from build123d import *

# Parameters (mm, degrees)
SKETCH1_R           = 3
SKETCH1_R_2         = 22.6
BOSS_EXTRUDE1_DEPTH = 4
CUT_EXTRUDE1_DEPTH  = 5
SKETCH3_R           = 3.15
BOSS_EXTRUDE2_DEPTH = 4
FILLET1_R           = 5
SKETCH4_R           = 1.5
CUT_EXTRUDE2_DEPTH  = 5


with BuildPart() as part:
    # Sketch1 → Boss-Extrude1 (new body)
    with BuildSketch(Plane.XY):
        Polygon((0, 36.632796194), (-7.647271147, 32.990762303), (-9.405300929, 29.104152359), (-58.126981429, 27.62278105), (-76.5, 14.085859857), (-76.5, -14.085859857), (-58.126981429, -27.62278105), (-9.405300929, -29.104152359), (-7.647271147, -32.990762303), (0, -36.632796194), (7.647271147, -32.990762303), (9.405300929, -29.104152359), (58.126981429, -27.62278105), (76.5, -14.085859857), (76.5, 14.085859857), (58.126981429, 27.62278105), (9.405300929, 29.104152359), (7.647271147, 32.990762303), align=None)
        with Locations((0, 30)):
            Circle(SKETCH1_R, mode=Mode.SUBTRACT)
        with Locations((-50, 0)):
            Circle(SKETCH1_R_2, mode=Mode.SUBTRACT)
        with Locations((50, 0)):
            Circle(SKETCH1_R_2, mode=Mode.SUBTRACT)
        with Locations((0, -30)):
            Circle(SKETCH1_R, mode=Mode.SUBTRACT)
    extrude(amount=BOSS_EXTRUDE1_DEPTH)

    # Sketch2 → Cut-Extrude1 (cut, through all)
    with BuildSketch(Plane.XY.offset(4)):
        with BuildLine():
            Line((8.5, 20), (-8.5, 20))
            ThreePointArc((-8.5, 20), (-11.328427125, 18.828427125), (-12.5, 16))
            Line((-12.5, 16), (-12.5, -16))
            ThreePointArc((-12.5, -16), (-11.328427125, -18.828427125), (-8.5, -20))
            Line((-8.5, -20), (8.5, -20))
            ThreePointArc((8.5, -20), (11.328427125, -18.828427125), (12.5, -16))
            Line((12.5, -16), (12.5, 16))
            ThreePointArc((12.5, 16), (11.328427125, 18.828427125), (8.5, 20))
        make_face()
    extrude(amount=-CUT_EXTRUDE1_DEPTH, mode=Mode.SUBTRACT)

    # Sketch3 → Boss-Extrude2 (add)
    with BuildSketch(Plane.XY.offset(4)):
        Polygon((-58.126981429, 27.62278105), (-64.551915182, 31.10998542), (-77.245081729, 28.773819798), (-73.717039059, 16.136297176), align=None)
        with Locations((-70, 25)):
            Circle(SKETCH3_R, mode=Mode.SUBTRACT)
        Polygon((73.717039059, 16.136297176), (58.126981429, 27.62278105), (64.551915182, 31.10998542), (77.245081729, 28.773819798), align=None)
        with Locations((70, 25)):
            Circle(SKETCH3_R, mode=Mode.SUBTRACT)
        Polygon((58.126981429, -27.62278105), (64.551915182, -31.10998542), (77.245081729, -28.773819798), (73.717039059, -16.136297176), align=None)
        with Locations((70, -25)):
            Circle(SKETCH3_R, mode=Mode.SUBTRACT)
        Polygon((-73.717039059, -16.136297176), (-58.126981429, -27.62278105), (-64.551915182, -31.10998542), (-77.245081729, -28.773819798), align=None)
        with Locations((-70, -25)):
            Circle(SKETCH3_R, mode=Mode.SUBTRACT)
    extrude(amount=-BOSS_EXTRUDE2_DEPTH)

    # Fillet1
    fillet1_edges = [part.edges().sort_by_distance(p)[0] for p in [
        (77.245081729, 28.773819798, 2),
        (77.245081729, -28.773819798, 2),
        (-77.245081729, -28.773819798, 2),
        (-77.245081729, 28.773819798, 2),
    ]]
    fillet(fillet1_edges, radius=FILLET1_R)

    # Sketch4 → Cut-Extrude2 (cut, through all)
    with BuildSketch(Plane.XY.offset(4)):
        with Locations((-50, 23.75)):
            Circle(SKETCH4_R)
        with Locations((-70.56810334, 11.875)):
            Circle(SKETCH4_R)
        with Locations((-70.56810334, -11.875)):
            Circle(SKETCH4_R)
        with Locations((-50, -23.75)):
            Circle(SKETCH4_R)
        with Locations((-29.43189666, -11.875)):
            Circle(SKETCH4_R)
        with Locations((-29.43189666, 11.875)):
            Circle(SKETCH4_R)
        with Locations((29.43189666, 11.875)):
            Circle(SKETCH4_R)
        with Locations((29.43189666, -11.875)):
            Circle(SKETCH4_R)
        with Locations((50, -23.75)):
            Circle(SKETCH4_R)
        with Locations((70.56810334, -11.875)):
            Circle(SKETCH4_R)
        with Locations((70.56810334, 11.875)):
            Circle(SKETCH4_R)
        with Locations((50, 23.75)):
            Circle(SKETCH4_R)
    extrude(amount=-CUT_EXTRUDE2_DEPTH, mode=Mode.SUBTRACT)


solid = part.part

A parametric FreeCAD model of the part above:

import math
import FreeCAD as App
import Part
import Sketcher
from FreeCAD import Vector
Q = App.Units.Quantity


def edges_at(feature, points):
    """Names of the edges that pass closest to the given points."""
    edges = feature.Shape.Edges
    near = lambda p: min(range(len(edges)), key=lambda i: edges[i].distToShape(Part.Vertex(*p))[0])
    return sorted({f"Edge{near(p) + 1}" for p in points})


def add_polygon(sketch, points):
    """Adds a closed chain of lines whose ends are joined by coincident constraints."""
    first, n = sketch.GeometryCount, len(points)
    for a, b in zip(points, points[1:] + points[:1]):
        sketch.addGeometry(Part.LineSegment(App.Vector(*a, 0), App.Vector(*b, 0)), False)
    for i in range(n):
        sketch.addConstraint(Sketcher.Constraint("Coincident", first + i, 2, first + (i + 1) % n, 1))

doc = App.newDocument("Part")
body = doc.addObject("PartDesign::Body", "Body")

sketch1 = body.newObject("Sketcher::SketchObject", "Sketch")
sketch1.AttachmentSupport = (doc.getObject("XY_Plane"), [""])
sketch1.MapMode = "FlatFace"
add_polygon(sketch1, [(0, 36.6), (-7.6, 33), (-9.4, 29.1), (-58.1, 27.6), (-76.5, 14.1), (-76.5, -14.1), (-58.1, -27.6), (-9.4, -29.1), (-7.6, -33), (0, -36.6), (7.6, -33), (9.4, -29.1), (58.1, -27.6), (76.5, -14.1), (76.5, 14.1), (58.1, 27.6), (9.4, 29.1), (7.6, 33)])
sketch1.addGeometry(Part.Circle(Vector(0, -30, 0), Vector(0, 0, 1), 3), False)
sketch1.addGeometry(Part.Circle(Vector(-50, 0, 0), Vector(0, 0, 1), 22.6), False)
sketch1.addGeometry(Part.Circle(Vector(50, 0, 0), Vector(0, 0, 1), 22.6), False)
sketch1.addGeometry(Part.Circle(Vector(0, 30, 0), Vector(0, 0, 1), 3), False)
sketch1.addConstraint([
    Sketcher.Constraint("Vertical", 4),
    Sketcher.Constraint("Vertical", 13),
    Sketcher.Constraint("Equal", 19, 20),
    Sketcher.Constraint("Equal", 18, 21),
    Sketcher.Constraint("Symmetric", 19, 3, 20, 3, -1, 1),
    Sketcher.Constraint("Symmetric", 18, 3, 21, 3, -1, 1),
    Sketcher.Constraint("Symmetric", 0, 2, 9, 2, -1, 1),
    Sketcher.Constraint("Symmetric", 1, 2, 10, 2, -1, 1),
    Sketcher.Constraint("Symmetric", 2, 2, 11, 2, -1, 1),
    Sketcher.Constraint("Symmetric", 3, 2, 12, 2, -1, 1),
    Sketcher.Constraint("Symmetric", 5, 2, 14, 2, -1, 1),
    Sketcher.Constraint("Symmetric", 6, 2, 15, 2, -1, 1),
    Sketcher.Constraint("Symmetric", 7, 2, 16, 2, -1, 1),
    Sketcher.Constraint("Symmetric", 8, 2, 17, 2, -1, 1),
    Sketcher.Constraint("Symmetric", 7, 2, 9, 2, -2),
    Sketcher.Constraint("Symmetric", 6, 2, 10, 2, -2),
    Sketcher.Constraint("Symmetric", 5, 2, 11, 2, -2),
    Sketcher.Constraint("PointOnObject", 18, 3, -2),
    Sketcher.Constraint("PointOnObject", 19, 3, -1),
    Sketcher.Constraint("PointOnObject", 8, 2, -2),
    Sketcher.Constraint("Parallel", 5, 14),
    Sketcher.Constraint("Horizontal", 4, 2, 12, 2),
    Sketcher.Constraint("Diameter", 18, Q("6 mm")),
    Sketcher.Constraint("Diameter", 19, Q("45.2 mm")),
    Sketcher.Constraint("DistanceY", 18, 3, -1, 1, Q("30 mm")),
    Sketcher.Constraint("DistanceX", 19, 3, -1, 1, Q("50 mm")),
    Sketcher.Constraint("DistanceX", 3, 2, -1, 1, Q("76.5 mm")),
    Sketcher.Constraint("DistanceY", 4, 2, 4, 1, Q("28.17172 mm")),
    Sketcher.Constraint("DistanceX", 1, 2, -1, 1, Q("9.405301 mm")),
    Sketcher.Constraint("Distance", 0, Q("8.470252 mm")),
    Sketcher.Constraint("DistanceX", 0, 2, -1, 1, Q("7.647271 mm")),
    Sketcher.Constraint("DistanceX", 2, 2, -1, 1, Q("58.126981 mm")),
    Sketcher.Constraint("DistanceY", -1, 1, 2, 2, Q("27.622781 mm")),
    Sketcher.Constraint("DistanceY", 1, 2, 0, 2, Q("3.88661 mm")),
    Sketcher.Constraint("DistanceY", 2, 2, 1, 2, Q("1.481371 mm")),
])
pad1 = body.newObject("PartDesign::Pad", "Pad")
pad1.Profile = sketch1
pad1.Length = 4

sketch2 = body.newObject("Sketcher::SketchObject", "Sketch001")
sketch2.AttachmentSupport = (doc.getObject("XY_Plane"), [""])
sketch2.MapMode = "FlatFace"
sketch2.AttachmentOffset = App.Placement(Vector(0, 0, 4), App.Rotation())
sketch2.addGeometry([
    Part.LineSegment(Vector(8.5, 20, 0), Vector(-8.5, 20, 0)),
    Part.ArcOfCircle(Part.Circle(Vector(-8.5, 16, 0), Vector(0, 0, 1), 4), math.radians(90), math.radians(180)),
    Part.LineSegment(Vector(-12.5, 16, 0), Vector(-12.5, -16, 0)),
    Part.ArcOfCircle(Part.Circle(Vector(-8.5, -16, 0), Vector(0, 0, 1), 4), math.radians(180), math.radians(270)),
    Part.LineSegment(Vector(-8.5, -20, 0), Vector(8.5, -20, 0)),
    Part.ArcOfCircle(Part.Circle(Vector(8.5, -16, 0), Vector(0, 0, 1), 4), math.radians(-90), math.radians(0)),
    Part.LineSegment(Vector(12.5, -16, 0), Vector(12.5, 16, 0)),
    Part.ArcOfCircle(Part.Circle(Vector(8.5, 16, 0), Vector(0, 0, 1), 4), math.radians(0), math.radians(90)),
], False)
sketch2.addConstraint([
    Sketcher.Constraint("Tangent", 0, 2, 1, 1),
    Sketcher.Constraint("Tangent", 1, 2, 2, 1),
    Sketcher.Constraint("Tangent", 2, 2, 3, 1),
    Sketcher.Constraint("Tangent", 3, 2, 4, 1),
    Sketcher.Constraint("Tangent", 4, 2, 5, 1),
    Sketcher.Constraint("Tangent", 5, 2, 6, 1),
    Sketcher.Constraint("Tangent", 6, 2, 7, 1),
    Sketcher.Constraint("Tangent", 7, 2, 0, 1),
    Sketcher.Constraint("Horizontal", 0),
    Sketcher.Constraint("Vertical", 2),
    Sketcher.Constraint("Horizontal", 4),
    Sketcher.Constraint("Vertical", 6),
    Sketcher.Constraint("Equal", 1, 3),
    Sketcher.Constraint("Equal", 3, 5),
    Sketcher.Constraint("Equal", 5, 7),
    Sketcher.Constraint("Symmetric", 1, 3, 5, 3, -1, 1),
    Sketcher.Constraint("Radius", 1, Q("4 mm")),
    Sketcher.Constraint("DistanceX", 0, 2, 0, 1, Q("17 mm")),
    Sketcher.Constraint("DistanceY", 2, 2, 2, 1, Q("32 mm")),
])
pocket1 = body.newObject("PartDesign::Pocket", "Pocket")
pocket1.Profile = sketch2
pocket1.Type = "ThroughAll"

sketch3 = body.newObject("Sketcher::SketchObject", "Sketch002")
sketch3.AttachmentSupport = (doc.getObject("XY_Plane"), [""])
sketch3.MapMode = "FlatFace"
sketch3.AttachmentOffset = App.Placement(Vector(0, 0, 4), App.Rotation())
add_polygon(sketch3, [(-58.1, 27.6), (-64.6, 31.1), (-77.2, 28.8), (-73.7, 16.1)])
sketch3.addGeometry(Part.Circle(Vector(-70, 25, 0), Vector(0, 0, 1), 3.1), False)
add_polygon(sketch3, [(58.1, 27.6), (73.7, 16.1), (77.2, 28.8), (64.6, 31.1)])
sketch3.addGeometry(Part.Circle(Vector(70, 25, 0), Vector(0, 0, 1), 3.1), False)
add_polygon(sketch3, [(58.1, -27.6), (64.6, -31.1), (77.2, -28.8), (73.7, -16.1)])
sketch3.addGeometry(Part.Circle(Vector(70, -25, 0), Vector(0, 0, 1), 3.1), False)
add_polygon(sketch3, [(-58.1, -27.6), (-73.7, -16.1), (-77.2, -28.8), (-64.6, -31.1)])
sketch3.addGeometry(Part.Circle(Vector(-70, -25, 0), Vector(0, 0, 1), 3.1), False)
sketch3.addConstraint([
    Sketcher.Constraint("Equal", 4, 9),
    Sketcher.Constraint("Equal", 9, 14),
    Sketcher.Constraint("Equal", 14, 19),
    Sketcher.Constraint("Symmetric", 4, 3, 14, 3, -1, 1),
    Sketcher.Constraint("Symmetric", 9, 3, 19, 3, -1, 1),
    Sketcher.Constraint("Symmetric", 0, 2, 10, 2, -1, 1),
    Sketcher.Constraint("Symmetric", 1, 2, 11, 2, -1, 1),
    Sketcher.Constraint("Symmetric", 2, 2, 12, 2, -1, 1),
    Sketcher.Constraint("Symmetric", 3, 2, 13, 2, -1, 1),
    Sketcher.Constraint("Symmetric", 5, 2, 15, 2, -1, 1),
    Sketcher.Constraint("Symmetric", 6, 2, 16, 2, -1, 1),
    Sketcher.Constraint("Symmetric", 7, 2, 17, 2, -1, 1),
    Sketcher.Constraint("Symmetric", 8, 2, 18, 2, -1, 1),
    Sketcher.Constraint("Symmetric", 4, 3, 9, 3, -2),
    Sketcher.Constraint("Symmetric", 2, 2, 5, 2, -2),
    Sketcher.Constraint("Symmetric", 1, 2, 6, 2, -2),
    Sketcher.Constraint("Symmetric", 0, 2, 7, 2, -2),
    Sketcher.Constraint("Symmetric", 3, 2, 8, 2, -2),
    Sketcher.Constraint("Diameter", 4, Q("6.3 mm")),
    Sketcher.Constraint("DistanceX", 4, 3, -1, 1, Q("70 mm")),
    Sketcher.Constraint("DistanceY", -1, 1, 4, 3, Q("25 mm")),
    Sketcher.Constraint("DistanceX", 1, 2, 3, 2, Q("19.1181 mm")),
    Sketcher.Constraint("Distance", 0, Q("7.310292 mm")),
    Sketcher.Constraint("Distance", 1, Q("12.906361 mm")),
    Sketcher.Constraint("Distance", 2, Q("13.120749 mm")),
    Sketcher.Constraint("Distance", 3, Q("19.364638 mm")),
    Sketcher.Constraint("DistanceX", 1, 2, -1, 1, Q("77.245082 mm")),
    Sketcher.Constraint("DistanceY", -1, 1, 1, 2, Q("28.77382 mm")),
    Sketcher.Constraint("DistanceX", 2, 2, -1, 1, Q("73.717039 mm")),
])
pad2 = body.newObject("PartDesign::Pad", "Pad001")
pad2.Profile = sketch3
pad2.Length = 4
pad2.Reversed = True
doc.recompute()

fillet = body.newObject("PartDesign::Fillet", "Fillet")
fillet.Base = (pad2, edges_at(pad2, [
    (77.245, 28.774, 2),
    (77.245, -28.774, 2),
    (-77.245, -28.774, 2),
    (-77.245, 28.774, 2),
]))
fillet.Radius = 5

sketch4 = body.newObject("Sketcher::SketchObject", "Sketch003")
sketch4.AttachmentSupport = (doc.getObject("XY_Plane"), [""])
sketch4.MapMode = "FlatFace"
sketch4.AttachmentOffset = App.Placement(Vector(0, 0, 4), App.Rotation())
sketch4.addGeometry([
    Part.Circle(Vector(-50, 23.8, 0), Vector(0, 0, 1), 1.5),
    Part.Circle(Vector(-70.6, 11.9, 0), Vector(0, 0, 1), 1.5),
    Part.Circle(Vector(-70.6, -11.9, 0), Vector(0, 0, 1), 1.5),
    Part.Circle(Vector(-50, -23.8, 0), Vector(0, 0, 1), 1.5),
    Part.Circle(Vector(-29.4, -11.9, 0), Vector(0, 0, 1), 1.5),
    Part.Circle(Vector(-29.4, 11.9, 0), Vector(0, 0, 1), 1.5),
    Part.Circle(Vector(29.4, 11.9, 0), Vector(0, 0, 1), 1.5),
    Part.Circle(Vector(29.4, -11.9, 0), Vector(0, 0, 1), 1.5),
    Part.Circle(Vector(50, -23.8, 0), Vector(0, 0, 1), 1.5),
    Part.Circle(Vector(70.6, -11.9, 0), Vector(0, 0, 1), 1.5),
    Part.Circle(Vector(70.6, 11.9, 0), Vector(0, 0, 1), 1.5),
    Part.Circle(Vector(50, 23.8, 0), Vector(0, 0, 1), 1.5),
], False)
sketch4.addConstraint([
    Sketcher.Constraint("Equal", 0, 1),
    Sketcher.Constraint("Equal", 1, 2),
    Sketcher.Constraint("Equal", 2, 3),
    Sketcher.Constraint("Equal", 3, 4),
    Sketcher.Constraint("Equal", 4, 5),
    Sketcher.Constraint("Equal", 5, 6),
    Sketcher.Constraint("Equal", 6, 7),
    Sketcher.Constraint("Equal", 7, 8),
    Sketcher.Constraint("Equal", 8, 9),
    Sketcher.Constraint("Equal", 9, 10),
    Sketcher.Constraint("Equal", 10, 11),
    Sketcher.Constraint("Symmetric", 4, 3, 6, 3, -1, 1),
    Sketcher.Constraint("Symmetric", 5, 3, 7, 3, -1, 1),
    Sketcher.Constraint("Symmetric", 0, 3, 8, 3, -1, 1),
    Sketcher.Constraint("Symmetric", 1, 3, 9, 3, -1, 1),
    Sketcher.Constraint("Symmetric", 2, 3, 10, 3, -1, 1),
    Sketcher.Constraint("Symmetric", 3, 3, 11, 3, -1, 1),
    Sketcher.Constraint("Symmetric", 5, 3, 6, 3, -2),
    Sketcher.Constraint("Symmetric", 3, 3, 8, 3, -2),
    Sketcher.Constraint("Symmetric", 2, 3, 9, 3, -2),
    Sketcher.Constraint("Horizontal", 2, 3, 4, 3),
    Sketcher.Constraint("Diameter", 0, Q("3 mm")),
    Sketcher.Constraint("DistanceX", 0, 3, -1, 1, Q("50 mm")),
    Sketcher.Constraint("DistanceX", 1, 3, 6, 3, Q("100 mm")),
    Sketcher.Constraint("DistanceY", 3, 3, 0, 3, Q("47.5 mm")),
    Sketcher.Constraint("DistanceY", 2, 3, 1, 3, Q("23.75 mm")),
    Sketcher.Constraint("DistanceX", 1, 3, -1, 1, Q("70.568103 mm")),
])
pocket2 = body.newObject("PartDesign::Pocket", "Pocket001")
pocket2.Profile = sketch4
pocket2.Type = "ThroughAll"

doc.recompute()
